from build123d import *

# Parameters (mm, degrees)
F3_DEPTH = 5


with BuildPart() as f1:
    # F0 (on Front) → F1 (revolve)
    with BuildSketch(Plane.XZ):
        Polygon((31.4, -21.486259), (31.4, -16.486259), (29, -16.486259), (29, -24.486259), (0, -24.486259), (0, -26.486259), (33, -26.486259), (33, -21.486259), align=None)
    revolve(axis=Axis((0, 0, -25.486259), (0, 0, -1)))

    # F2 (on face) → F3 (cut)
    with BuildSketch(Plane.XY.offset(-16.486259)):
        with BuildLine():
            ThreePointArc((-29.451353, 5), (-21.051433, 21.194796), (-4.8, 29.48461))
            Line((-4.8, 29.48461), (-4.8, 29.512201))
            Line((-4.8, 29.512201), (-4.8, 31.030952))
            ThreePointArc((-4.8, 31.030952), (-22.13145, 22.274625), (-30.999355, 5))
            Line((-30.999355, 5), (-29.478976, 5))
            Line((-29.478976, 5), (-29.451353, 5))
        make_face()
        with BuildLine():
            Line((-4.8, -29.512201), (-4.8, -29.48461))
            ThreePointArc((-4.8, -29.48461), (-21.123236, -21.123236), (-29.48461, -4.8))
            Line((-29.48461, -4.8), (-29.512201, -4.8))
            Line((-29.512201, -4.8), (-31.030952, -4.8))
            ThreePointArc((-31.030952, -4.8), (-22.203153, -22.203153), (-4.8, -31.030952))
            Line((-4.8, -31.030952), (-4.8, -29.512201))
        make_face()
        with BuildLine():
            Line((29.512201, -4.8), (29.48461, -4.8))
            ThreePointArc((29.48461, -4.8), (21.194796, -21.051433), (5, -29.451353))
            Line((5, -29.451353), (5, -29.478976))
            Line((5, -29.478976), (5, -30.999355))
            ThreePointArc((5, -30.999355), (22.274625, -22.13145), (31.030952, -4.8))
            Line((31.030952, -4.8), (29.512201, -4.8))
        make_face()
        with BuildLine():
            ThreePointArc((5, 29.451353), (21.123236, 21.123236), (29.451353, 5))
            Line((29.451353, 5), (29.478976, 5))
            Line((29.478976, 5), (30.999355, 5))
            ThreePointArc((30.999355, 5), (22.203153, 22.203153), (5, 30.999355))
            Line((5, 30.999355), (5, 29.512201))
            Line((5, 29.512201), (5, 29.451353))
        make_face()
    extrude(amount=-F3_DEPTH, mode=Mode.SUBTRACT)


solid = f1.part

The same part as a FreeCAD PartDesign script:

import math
import FreeCAD as App
import Part
import Sketcher
from FreeCAD import Vector
Q = App.Units.Quantity


def add_polygon(sketch, points):
    """Adds a closed chain of lines whose ends are joined by coincident constraints."""
    first, n = sketch.GeometryCount, len(points)
    for a, b in zip(points, points[1:] + points[:1]):
        sketch.addGeometry(Part.LineSegment(App.Vector(*a, 0), App.Vector(*b, 0)), False)
    for i in range(n):
        sketch.addConstraint(Sketcher.Constraint("Coincident", first + i, 2, first + (i + 1) % n, 1))

doc = App.newDocument("Part")
params = doc.addObject("Spreadsheet::Sheet", "Params")
for row, (alias, value) in enumerate([
    ("sketch1_width", "29 mm"),
    ("sketch1_width2", "33 mm"),
    ("sketch1_height", "5 mm"),
    ("sketch1_height2", "8 mm"),
    ("sketch1_width3", "2.4 mm"),
    ("revolution_angle", "360 deg"),
    ("sketch2_radius", "31.4 mm"),
    ("pocket1_length", "5 mm"),
], start=1):
    params.set(f"A{row}", alias)
    params.set(f"B{row}", "=" + value)
    params.setAlias(f"B{row}", alias)

body = doc.addObject("PartDesign::Body", "Body")

# Sketch on XZ plane
sketch1 = doc.addObject("Sketcher::SketchObject", "Sketch")
body.addObject(sketch1)
sketch1.AttachmentSupport = (doc.XZ_Plane, [""])
sketch1.MapMode = "FlatFace"
add_polygon(sketch1, [(31.4, -21.486259), (31.4, -16.486259), (29, -16.486259), (29, -24.486259), (0, -24.486259), (0, -26.486259), (33, -26.486259), (33, -21.486259)])  # lines 0-7
sketch1.addConstraint([
    Sketcher.Constraint("Vertical", 0),
    Sketcher.Constraint("Horizontal", 1),
    Sketcher.Constraint("Vertical", 2),
    Sketcher.Constraint("Horizontal", 3),
    Sketcher.Constraint("Vertical", 4),
    Sketcher.Constraint("Horizontal", 5),
    Sketcher.Constraint("Vertical", 6),
    Sketcher.Constraint("Horizontal", 7),
    Sketcher.Constraint("PointOnObject", 3, 2, -2),
    Sketcher.Constraint("Equal", 0, 6),
    Sketcher.Constraint("DistanceX", 3, 2, 3, 1, Q("29 mm")),
    Sketcher.Constraint("DistanceX", 5, 1, 5, 2, Q("33 mm")),
    Sketcher.Constraint("DistanceY", 0, 1, 0, 2, Q("5 mm")),
    Sketcher.Constraint("DistanceY", 2, 2, 2, 1, Q("8 mm")),
    Sketcher.Constraint("DistanceX", 1, 2, 1, 1, Q("2.4 mm")),
    Sketcher.Constraint("DistanceY", 0, 2, -1, 1, Q("16.486259 mm")),
])
sketch1.setExpression("Constraints[18]", "Params.sketch1_width")
sketch1.setExpression("Constraints[19]", "Params.sketch1_width2")
sketch1.setExpression("Constraints[20]", "Params.sketch1_height")
sketch1.setExpression("Constraints[21]", "Params.sketch1_height2")
sketch1.setExpression("Constraints[22]", "Params.sketch1_width3")
revolution = doc.addObject("PartDesign::Revolution", "Revolution")
body.addObject(revolution)
revolution.Profile = sketch1
revolution.ReferenceAxis = (sketch1, ["V_Axis"])
revolution.setExpression("Angle", "Params.revolution_angle")

# Sketch on XY plane
sketch2 = doc.addObject("Sketcher::SketchObject", "Sketch001")
body.addObject(sketch2)
sketch2.AttachmentSupport = (doc.XY_Plane, [""])
sketch2.MapMode = "FlatFace"
sketch2.AttachmentOffset = App.Placement(Vector(0, 0, -16.486259), App.Rotation())
sketch2.addGeometry([
    Part.ArcOfCircle(Part.Circle(Vector(0, 0, 0), Vector(0, 0, 1), 29.872767), math.radians(99.246454), math.radians(170.364681)),  # 0
    Part.LineSegment(Vector(-4.8, 29.48461, 0), Vector(-4.8, 31.030952, 0)),  # 1
    Part.ArcOfCircle(Part.Circle(Vector(0, 0, 0), Vector(0, 0, 1), 31.4), math.radians(98.793066), math.radians(170.837465)),  # 2
    Part.LineSegment(Vector(-30.999355, 5, 0), Vector(-29.451353, 5, 0)),  # 3
    Part.ArcOfCircle(Part.Circle(Vector(0.000002, 0.000002, 0), Vector(0, 0, 1), 29.872769), math.radians(-170.753544), math.radians(-99.246456)),  # 4
    Part.LineSegment(Vector(-29.48461, -4.8, 0), Vector(-31.030952, -4.8, 0)),  # 5
    Part.ArcOfCircle(Part.Circle(Vector(-0.000001, -0.000001, 0), Vector(0, 0, 1), 31.399998), math.radians(-171.206936), math.radians(-98.793064)),  # 6
    Part.LineSegment(Vector(-4.8, -31.030952, 0), Vector(-4.8, -29.48461, 0)),  # 7
    Part.ArcOfCircle(Part.Circle(Vector(0, 0, 0), Vector(0, 0, 1), 29.872767), math.radians(-80.364681), math.radians(-9.246454)),  # 8
    Part.LineSegment(Vector(5, -29.451353, 0), Vector(5, -30.999355, 0)),  # 9
    Part.ArcOfCircle(Part.Circle(Vector(0, 0, 0), Vector(0, 0, 1), 31.4), math.radians(-80.837465), math.radians(-8.793066)),  # 10
    Part.LineSegment(Vector(31.030952, -4.8, 0), Vector(29.48461, -4.8, 0)),  # 11
    Part.ArcOfCircle(Part.Circle(Vector(0, 0, 0), Vector(0, 0, 1), 29.872766), math.radians(9.635319), math.radians(80.364681)),  # 12
    Part.LineSegment(Vector(29.451353, 5, 0), Vector(30.999355, 5, 0)),  # 13
    Part.ArcOfCircle(Part.Circle(Vector(0, 0, 0), Vector(0, 0, 1), 31.4), math.radians(9.162535), math.radians(80.837465)),  # 14
    Part.LineSegment(Vector(5, 30.999355, 0), Vector(5, 29.451353, 0)),  # 15
], False)
sketch2.addConstraint([
    Sketcher.Constraint("Coincident", 0, 1, 1, 1),
    Sketcher.Constraint("Coincident", 1, 2, 2, 1),
    Sketcher.Constraint("Coincident", 2, 2, 3, 1),
    Sketcher.Constraint("Coincident", 3, 2, 0, 2),
    Sketcher.Constraint("Coincident", 4, 1, 5, 1),
    Sketcher.Constraint("Coincident", 5, 2, 6, 1),
    Sketcher.Constraint("Coincident", 6, 2, 7, 1),
    Sketcher.Constraint("Coincident", 7, 2, 4, 2),
    Sketcher.Constraint("Coincident", 8, 1, 9, 1),
    Sketcher.Constraint("Coincident", 9, 2, 10, 1),
    Sketcher.Constraint("Coincident", 10, 2, 11, 1),
    Sketcher.Constraint("Coincident", 11, 2, 8, 2),
    Sketcher.Constraint("Coincident", 12, 1, 13, 1),
    Sketcher.Constraint("Coincident", 13, 2, 14, 1),
    Sketcher.Constraint("Coincident", 14, 2, 15, 1),
    Sketcher.Constraint("Coincident", 15, 2, 12, 2),
    Sketcher.Constraint("Vertical", 1),
    Sketcher.Constraint("Horizontal", 3),
    Sketcher.Constraint("Horizontal", 5),
    Sketcher.Constraint("Vertical", 7),
    Sketcher.Constraint("Vertical", 9),
    Sketcher.Constraint("Horizontal", 11),
    Sketcher.Constraint("Horizontal", 13),
    Sketcher.Constraint("Vertical", 15),
    Sketcher.Constraint("Coincident", 0, 3, -1, 1),
    Sketcher.Constraint("Coincident", 2, 3, -1, 1),
    Sketcher.Constraint("Coincident", 4, 3, -1, 1),
    Sketcher.Constraint("Coincident", 6, 3, -1, 1),
    Sketcher.Constraint("Coincident", 8, 3, -1, 1),
    Sketcher.Constraint("Coincident", 10, 3, -1, 1),
    Sketcher.Constraint("Coincident", 12, 3, -1, 1),
    Sketcher.Constraint("Coincident", 14, 3, -1, 1),
    Sketcher.Constraint("Equal", 2, 6),
    Sketcher.Constraint("Equal", 0, 8),
    Sketcher.Constraint("Equal", 6, 10),
    Sketcher.Constraint("Equal", 8, 12),
    Sketcher.Constraint("Equal", 10, 14),
    Sketcher.Constraint("Symmetric", 4, 1, 11, 2, -2),
    Sketcher.Constraint("Horizontal", 3, 2, 12, 1),
    Sketcher.Constraint("Vertical", 1, 2, 6, 2),
    Sketcher.Constraint("Vertical", 9, 2, 14, 2),
    Sketcher.Constraint("Equal", 11, 1),
    Sketcher.Constraint("Equal", 13, 9),
    Sketcher.Constraint("Radius", 2, Q("31.4 mm")),
    Sketcher.Constraint("DistanceY", -1, 1, 2, 2, Q("5 mm")),
    Sketcher.Constraint("DistanceX", 0, 1, -1, 1, Q("4.8 mm")),
    Sketcher.Constraint("Radius", 4, Q("29.872769 mm")),
])
sketch2.setExpression("Constraints[43]", "Params.sketch2_radius")
pocket1 = doc.addObject("PartDesign::Pocket", "Pocket")
body.addObject(pocket1)
pocket1.Profile = sketch2
pocket1.setExpression("Length", "Params.pocket1_length")

doc.recompute()
